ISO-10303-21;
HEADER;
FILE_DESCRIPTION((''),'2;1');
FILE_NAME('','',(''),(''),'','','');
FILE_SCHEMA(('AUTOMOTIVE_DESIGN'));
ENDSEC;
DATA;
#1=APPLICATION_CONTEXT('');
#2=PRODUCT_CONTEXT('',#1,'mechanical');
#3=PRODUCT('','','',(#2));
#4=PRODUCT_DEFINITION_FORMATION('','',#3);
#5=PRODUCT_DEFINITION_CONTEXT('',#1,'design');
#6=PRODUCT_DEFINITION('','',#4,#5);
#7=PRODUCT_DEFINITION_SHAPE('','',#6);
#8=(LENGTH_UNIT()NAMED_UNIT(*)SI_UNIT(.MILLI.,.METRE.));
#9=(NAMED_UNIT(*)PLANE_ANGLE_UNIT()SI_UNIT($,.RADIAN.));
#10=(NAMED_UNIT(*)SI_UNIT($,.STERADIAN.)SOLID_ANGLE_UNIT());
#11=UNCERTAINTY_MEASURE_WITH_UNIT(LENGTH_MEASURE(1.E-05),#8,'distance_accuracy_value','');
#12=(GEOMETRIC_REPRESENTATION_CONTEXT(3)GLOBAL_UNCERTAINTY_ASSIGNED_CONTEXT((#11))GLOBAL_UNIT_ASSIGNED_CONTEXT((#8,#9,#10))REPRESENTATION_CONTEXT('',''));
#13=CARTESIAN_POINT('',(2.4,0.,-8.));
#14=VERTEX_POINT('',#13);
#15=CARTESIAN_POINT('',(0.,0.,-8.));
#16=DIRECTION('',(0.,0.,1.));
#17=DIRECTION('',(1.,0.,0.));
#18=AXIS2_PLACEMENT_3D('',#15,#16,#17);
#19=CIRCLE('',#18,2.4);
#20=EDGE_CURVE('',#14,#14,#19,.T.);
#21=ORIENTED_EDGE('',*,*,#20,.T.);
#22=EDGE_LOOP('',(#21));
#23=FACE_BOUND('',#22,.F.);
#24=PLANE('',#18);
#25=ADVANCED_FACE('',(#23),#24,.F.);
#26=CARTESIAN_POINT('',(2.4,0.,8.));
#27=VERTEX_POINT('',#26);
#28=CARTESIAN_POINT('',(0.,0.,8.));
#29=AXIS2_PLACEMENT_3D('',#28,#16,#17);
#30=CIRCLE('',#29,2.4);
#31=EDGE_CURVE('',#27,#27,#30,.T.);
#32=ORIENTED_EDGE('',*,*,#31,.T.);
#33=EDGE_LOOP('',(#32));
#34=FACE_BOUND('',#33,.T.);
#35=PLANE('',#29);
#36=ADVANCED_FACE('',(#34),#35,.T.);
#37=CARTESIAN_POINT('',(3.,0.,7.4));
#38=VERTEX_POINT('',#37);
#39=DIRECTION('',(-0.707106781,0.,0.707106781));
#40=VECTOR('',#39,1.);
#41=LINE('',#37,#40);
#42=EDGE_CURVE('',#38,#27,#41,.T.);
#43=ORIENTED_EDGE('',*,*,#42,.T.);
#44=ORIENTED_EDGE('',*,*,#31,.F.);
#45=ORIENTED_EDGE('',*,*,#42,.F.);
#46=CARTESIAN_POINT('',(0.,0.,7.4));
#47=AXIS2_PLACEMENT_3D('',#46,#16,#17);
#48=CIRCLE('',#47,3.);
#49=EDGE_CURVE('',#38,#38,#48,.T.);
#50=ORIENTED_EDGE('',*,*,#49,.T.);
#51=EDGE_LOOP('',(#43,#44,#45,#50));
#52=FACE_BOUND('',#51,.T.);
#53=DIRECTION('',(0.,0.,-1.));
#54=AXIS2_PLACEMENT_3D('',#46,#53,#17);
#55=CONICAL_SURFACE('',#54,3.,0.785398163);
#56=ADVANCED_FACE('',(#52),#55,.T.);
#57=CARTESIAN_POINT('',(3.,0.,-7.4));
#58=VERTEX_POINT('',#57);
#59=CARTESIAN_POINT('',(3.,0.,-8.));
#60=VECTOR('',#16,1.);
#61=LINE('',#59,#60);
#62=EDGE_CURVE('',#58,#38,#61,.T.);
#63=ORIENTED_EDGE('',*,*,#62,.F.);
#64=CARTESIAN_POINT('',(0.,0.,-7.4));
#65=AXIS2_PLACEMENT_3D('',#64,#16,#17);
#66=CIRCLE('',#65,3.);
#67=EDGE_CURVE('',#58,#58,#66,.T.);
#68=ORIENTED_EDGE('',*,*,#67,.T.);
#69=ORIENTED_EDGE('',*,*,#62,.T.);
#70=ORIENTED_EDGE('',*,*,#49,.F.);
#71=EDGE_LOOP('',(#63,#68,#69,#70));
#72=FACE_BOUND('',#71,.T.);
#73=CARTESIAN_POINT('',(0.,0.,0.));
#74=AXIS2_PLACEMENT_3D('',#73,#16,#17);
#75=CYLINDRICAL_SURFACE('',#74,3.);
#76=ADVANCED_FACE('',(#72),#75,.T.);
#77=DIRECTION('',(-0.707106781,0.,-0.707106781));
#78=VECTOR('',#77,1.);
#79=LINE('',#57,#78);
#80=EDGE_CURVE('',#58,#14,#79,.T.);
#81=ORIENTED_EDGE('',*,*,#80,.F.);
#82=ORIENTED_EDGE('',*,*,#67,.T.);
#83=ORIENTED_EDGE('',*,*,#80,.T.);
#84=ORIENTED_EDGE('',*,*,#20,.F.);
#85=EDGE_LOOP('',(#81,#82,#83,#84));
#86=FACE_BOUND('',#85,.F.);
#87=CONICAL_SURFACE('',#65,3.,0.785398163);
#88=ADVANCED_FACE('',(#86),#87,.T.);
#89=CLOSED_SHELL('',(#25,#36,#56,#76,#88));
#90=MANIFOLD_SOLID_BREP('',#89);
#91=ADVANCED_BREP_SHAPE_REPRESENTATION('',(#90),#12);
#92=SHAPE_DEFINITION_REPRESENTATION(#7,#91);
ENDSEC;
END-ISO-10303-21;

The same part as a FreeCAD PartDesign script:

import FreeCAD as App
import Part
import Sketcher


def edges_at(feature, points):
    """Names of the edges that pass closest to the given points."""
    edges = feature.Shape.Edges
    near = lambda p: min(range(len(edges)), key=lambda i: edges[i].distToShape(Part.Vertex(*p))[0])
    return sorted({f"Edge{near(p) + 1}" for p in points})

doc = App.newDocument("Part")
body = doc.addObject("PartDesign::Body", "Body")

sketch1 = body.newObject("Sketcher::SketchObject", "Sketch")
sketch1.AttachmentSupport = (doc.getObject("XY_Plane"), [""])
sketch1.MapMode = "FlatFace"
sketch1.addGeometry(Part.Circle(App.Vector(0, 0, 0), App.Vector(0, 0, 1), 3), False)
sketch1.addConstraint(Sketcher.Constraint("Coincident", 0, 3, -1, 1))
sketch1.addConstraint(Sketcher.Constraint("Diameter", 0, 6.0))
pad1 = body.newObject("PartDesign::Pad", "Pad")
pad1.Profile = sketch1
pad1.Length = 16
pad1.Midplane = True
doc.recompute()

chamfer = body.newObject("PartDesign::Chamfer", "Chamfer")
chamfer.Base = (pad1, edges_at(pad1, [(-3, 0, 8), (-3, 0, -8)]))
chamfer.Size = 0.6

doc.recompute()
